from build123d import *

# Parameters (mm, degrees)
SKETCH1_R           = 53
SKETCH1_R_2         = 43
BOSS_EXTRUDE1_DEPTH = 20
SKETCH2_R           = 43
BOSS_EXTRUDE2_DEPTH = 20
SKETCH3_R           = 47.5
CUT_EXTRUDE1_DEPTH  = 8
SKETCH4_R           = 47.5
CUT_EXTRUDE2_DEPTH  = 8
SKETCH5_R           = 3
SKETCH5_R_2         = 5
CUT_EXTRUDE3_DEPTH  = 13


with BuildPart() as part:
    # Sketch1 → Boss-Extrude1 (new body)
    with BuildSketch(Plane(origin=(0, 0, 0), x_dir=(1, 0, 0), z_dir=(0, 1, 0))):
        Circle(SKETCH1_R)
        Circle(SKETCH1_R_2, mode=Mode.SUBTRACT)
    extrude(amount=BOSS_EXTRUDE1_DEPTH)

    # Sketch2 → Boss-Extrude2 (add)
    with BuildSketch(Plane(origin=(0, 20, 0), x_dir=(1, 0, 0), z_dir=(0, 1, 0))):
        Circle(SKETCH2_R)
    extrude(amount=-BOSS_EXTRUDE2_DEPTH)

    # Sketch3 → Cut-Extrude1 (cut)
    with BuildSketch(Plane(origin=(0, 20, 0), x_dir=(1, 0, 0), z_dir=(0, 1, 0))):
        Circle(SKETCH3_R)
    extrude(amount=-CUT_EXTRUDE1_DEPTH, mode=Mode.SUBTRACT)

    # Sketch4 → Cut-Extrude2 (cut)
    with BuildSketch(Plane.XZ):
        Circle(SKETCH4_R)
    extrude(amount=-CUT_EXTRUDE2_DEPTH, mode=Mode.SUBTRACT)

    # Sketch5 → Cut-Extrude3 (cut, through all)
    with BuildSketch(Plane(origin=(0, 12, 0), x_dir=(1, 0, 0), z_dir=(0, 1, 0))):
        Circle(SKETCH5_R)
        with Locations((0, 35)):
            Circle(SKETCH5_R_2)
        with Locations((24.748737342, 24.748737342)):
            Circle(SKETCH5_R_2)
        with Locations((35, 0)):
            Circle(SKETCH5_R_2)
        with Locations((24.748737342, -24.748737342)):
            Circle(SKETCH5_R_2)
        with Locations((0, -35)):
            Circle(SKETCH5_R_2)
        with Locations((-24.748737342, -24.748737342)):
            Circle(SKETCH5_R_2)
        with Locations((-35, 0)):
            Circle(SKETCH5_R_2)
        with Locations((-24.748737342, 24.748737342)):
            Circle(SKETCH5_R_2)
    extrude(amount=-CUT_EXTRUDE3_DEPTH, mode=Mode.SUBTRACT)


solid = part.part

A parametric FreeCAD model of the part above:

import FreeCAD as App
import Part
import Sketcher

doc = App.newDocument("Part")
body = doc.addObject("PartDesign::Body", "Body")

# Sketch on XZ plane
sketch1 = body.newObject("Sketcher::SketchObject", "Sketch")
sketch1.AttachmentSupport = (doc.getObject("XZ_Plane"), [""])
sketch1.MapMode = "FlatFace"
sketch1.addGeometry([
    Part.Circle(App.Vector(0, 0, 0), App.Vector(0, 0, 1), 53),
    Part.Circle(App.Vector(0, 0, 0), App.Vector(0, 0, 1), 43),
], False)
sketch1.addConstraint([
    Sketcher.Constraint("Coincident", 0, 3, -1, 1),
    Sketcher.Constraint("Coincident", 1, 3, -1, 1),
    Sketcher.Constraint("Diameter", 0, 106.0),
    Sketcher.Constraint("Diameter", 1, 86.0),
])
pad1 = body.newObject("PartDesign::Pad", "Pad")
pad1.Profile = sketch1
pad1.Length = 20
pad1.Reversed = True

# Sketch on XZ plane
sketch2 = body.newObject("Sketcher::SketchObject", "Sketch001")
sketch2.AttachmentSupport = (doc.getObject("XZ_Plane"), [""])
sketch2.MapMode = "FlatFace"
sketch2.AttachmentOffset = App.Placement(App.Vector(0, 0, -20), App.Rotation())
sketch2.addGeometry(Part.Circle(App.Vector(0, 0, 0), App.Vector(0, 0, 1), 43), False)
sketch2.addConstraint([
    Sketcher.Constraint("Coincident", 0, 3, -1, 1),
    Sketcher.Constraint("Diameter", 0, 86.0),
])
pad2 = body.newObject("PartDesign::Pad", "Pad001")
pad2.Profile = sketch2
pad2.Length = 20

# Sketch on XZ plane
sketch3 = body.newObject("Sketcher::SketchObject", "Sketch002")
sketch3.AttachmentSupport = (doc.getObject("XZ_Plane"), [""])
sketch3.MapMode = "FlatFace"
sketch3.AttachmentOffset = App.Placement(App.Vector(0, 0, -20), App.Rotation())
sketch3.addGeometry(Part.Circle(App.Vector(0, 0, 0), App.Vector(0, 0, 1), 48), False)
sketch3.addConstraint([
    Sketcher.Constraint("Coincident", 0, 3, -1, 1),
    Sketcher.Constraint("Diameter", 0, 95.0),
])
pocket1 = body.newObject("PartDesign::Pocket", "Pocket")
pocket1.Profile = sketch3
pocket1.Length = 8
pocket1.Reversed = True

# Sketch on XZ plane
sketch4 = body.newObject("Sketcher::SketchObject", "Sketch003")
sketch4.AttachmentSupport = (doc.getObject("XZ_Plane"), [""])
sketch4.MapMode = "FlatFace"
sketch4.addGeometry(Part.Circle(App.Vector(0, 0, 0), App.Vector(0, 0, 1), 48), False)
sketch4.addConstraint([
    Sketcher.Constraint("Coincident", 0, 3, -1, 1),
    Sketcher.Constraint("Diameter", 0, 95.0),
])
pocket2 = body.newObject("PartDesign::Pocket", "Pocket001")
pocket2.Profile = sketch4
pocket2.Length = 8

# Sketch on XZ plane
sketch5 = body.newObject("Sketcher::SketchObject", "Sketch004")
sketch5.AttachmentSupport = (doc.getObject("XZ_Plane"), [""])
sketch5.MapMode = "FlatFace"
sketch5.AttachmentOffset = App.Placement(App.Vector(0, 0, -12), App.Rotation())
sketch5.addGeometry([
    Part.Circle(App.Vector(0, 0, 0), App.Vector(0, 0, 1), 3),  # 0
    Part.Circle(App.Vector(0, -35, 0), App.Vector(0, 0, 1), 5),  # 1
    Part.Circle(App.Vector(24.7, -24.7, 0), App.Vector(0, 0, 1), 5),  # 2
    Part.Circle(App.Vector(35, 0, 0), App.Vector(0, 0, 1), 5),  # 3
    Part.Circle(App.Vector(24.7, 24.7, 0), App.Vector(0, 0, 1), 5),  # 4
    Part.Circle(App.Vector(0, 35, 0), App.Vector(0, 0, 1), 5),  # 5
    Part.Circle(App.Vector(-24.7, 24.7, 0), App.Vector(0, 0, 1), 5),  # 6
    Part.Circle(App.Vector(-35, 0, 0), App.Vector(0, 0, 1), 5),  # 7
    Part.Circle(App.Vector(-24.7, -24.7, 0), App.Vector(0, 0, 1), 5),  # 8
], False)
sketch5.addConstraint([
    Sketcher.Constraint("Coincident", 0, 3, -1, 1),
    Sketcher.Constraint("Equal", 1, 2),
    Sketcher.Constraint("Equal", 2, 3),
    Sketcher.Constraint("Equal", 3, 4),
    Sketcher.Constraint("Equal", 4, 5),
    Sketcher.Constraint("Equal", 5, 6),
    Sketcher.Constraint("Equal", 6, 7),
    Sketcher.Constraint("Equal", 7, 8),
    Sketcher.Constraint("Symmetric", 1, 3, 5, 3, -1, 1),
    Sketcher.Constraint("Symmetric", 2, 3, 6, 3, -1, 1),
    Sketcher.Constraint("Symmetric", 3, 3, 7, 3, -1, 1),
    Sketcher.Constraint("Symmetric", 4, 3, 8, 3, -1, 1),
    Sketcher.Constraint("Symmetric", 4, 3, 6, 3, -2),
    Sketcher.Constraint("PointOnObject", 1, 3, -2),
    Sketcher.Constraint("PointOnObject", 3, 3, -1),
    Sketcher.Constraint("Diameter", 0, 6.0),
    Sketcher.Constraint("Diameter", 1, 10.0),
    Sketcher.Constraint("DistanceY", 1, 3, -1, 1, 35.0),
    Sketcher.Constraint("DistanceX", -1, 1, 3, 3, 35.0),
    Sketcher.Constraint("DistanceX", -1, 1, 2, 3, 24.748737),
    Sketcher.Constraint("DistanceY", 2, 3, -1, 1, 24.748737),
])
pocket3 = body.newObject("PartDesign::Pocket", "Pocket002")
pocket3.Profile = sketch5
pocket3.Type = "ThroughAll"
pocket3.Reversed = True

doc.recompute()
